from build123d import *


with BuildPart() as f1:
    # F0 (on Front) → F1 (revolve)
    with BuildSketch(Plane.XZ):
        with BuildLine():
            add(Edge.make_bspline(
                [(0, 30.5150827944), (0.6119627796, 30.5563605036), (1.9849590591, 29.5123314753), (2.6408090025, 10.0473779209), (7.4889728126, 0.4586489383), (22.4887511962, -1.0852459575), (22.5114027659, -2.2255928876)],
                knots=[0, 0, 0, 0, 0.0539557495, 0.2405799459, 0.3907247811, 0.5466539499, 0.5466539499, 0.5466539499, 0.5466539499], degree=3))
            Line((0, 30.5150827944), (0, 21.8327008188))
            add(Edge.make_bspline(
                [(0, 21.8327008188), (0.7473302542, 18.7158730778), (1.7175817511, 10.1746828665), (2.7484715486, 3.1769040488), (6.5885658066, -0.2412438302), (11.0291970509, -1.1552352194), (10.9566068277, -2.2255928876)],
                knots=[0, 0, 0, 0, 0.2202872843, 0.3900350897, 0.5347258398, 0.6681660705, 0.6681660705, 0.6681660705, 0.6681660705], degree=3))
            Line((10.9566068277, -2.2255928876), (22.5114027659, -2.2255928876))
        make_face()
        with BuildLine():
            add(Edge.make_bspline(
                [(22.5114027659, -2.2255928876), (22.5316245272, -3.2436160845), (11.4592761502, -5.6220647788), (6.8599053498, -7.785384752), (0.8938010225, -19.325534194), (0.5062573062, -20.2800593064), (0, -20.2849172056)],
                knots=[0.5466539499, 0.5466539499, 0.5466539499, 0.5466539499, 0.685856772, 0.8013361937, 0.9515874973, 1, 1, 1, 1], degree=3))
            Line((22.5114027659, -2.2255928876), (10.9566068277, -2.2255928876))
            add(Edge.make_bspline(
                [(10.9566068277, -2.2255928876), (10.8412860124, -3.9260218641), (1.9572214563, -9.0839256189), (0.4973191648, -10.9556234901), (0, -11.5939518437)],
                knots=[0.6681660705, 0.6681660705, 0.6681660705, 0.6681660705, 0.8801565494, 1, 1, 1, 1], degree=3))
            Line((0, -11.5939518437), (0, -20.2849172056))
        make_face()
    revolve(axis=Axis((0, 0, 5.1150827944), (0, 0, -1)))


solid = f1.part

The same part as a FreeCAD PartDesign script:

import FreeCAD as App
import Part
import Sketcher

doc = App.newDocument("Part")
params = doc.addObject("Spreadsheet::Sheet", "Params")
for row, (alias, value) in enumerate([
    ("revolution_angle", "360 deg"),
], start=1):
    params.set(f"A{row}", alias)
    params.set(f"B{row}", "=" + value)
    params.setAlias(f"B{row}", alias)

body = doc.addObject("PartDesign::Body", "Body")

sketch1 = body.newObject("Sketcher::SketchObject", "Sketch")
sketch1.AttachmentSupport = (doc.getObject("XZ_Plane"), [""])
sketch1.MapMode = "FlatFace"
sketch1.addGeometry([
    Part.BSplineCurve([App.Vector(0, 30.515083, 0), App.Vector(0.611963, 30.556361, 0), App.Vector(1.984959, 29.512331, 0), App.Vector(2.640809, 10.047378, 0), App.Vector(7.488973, 0.458649, 0), App.Vector(22.488751, -1.085246, 0), App.Vector(22.511403, -2.225593, 0)], [4, 1, 1, 1, 4], [0, 0.053955749, 0.240579946, 0.390724781, 0.54665395], False, 3, [1, 1, 1, 1, 1, 1, 1], False),
    Part.LineSegment(App.Vector(0, 30.515083, 0), App.Vector(0, 21.832701, 0)),
    Part.BSplineCurve([App.Vector(0, 21.832701, 0), App.Vector(0.74733, 18.715873, 0), App.Vector(1.717582, 10.174683, 0), App.Vector(2.748472, 3.176904, 0), App.Vector(6.588566, -0.241244, 0), App.Vector(11.029197, -1.155235, 0), App.Vector(10.956607, -2.225593, 0)], [4, 1, 1, 1, 4], [0, 0.220287284, 0.39003509, 0.53472584, 0.66816607], False, 3, [1, 1, 1, 1, 1, 1, 1], False),
    Part.BSplineCurve([App.Vector(10.956607, -2.225593, 0), App.Vector(10.841286, -3.926022, 0), App.Vector(1.957221, -9.083926, 0), App.Vector(0.497319, -10.955623, 0), App.Vector(0, -11.593952, 0)], [4, 1, 4], [0.66816607, 0.880156549, 1], False, 3, [1, 1, 1, 1, 1], False),
    Part.LineSegment(App.Vector(0, -11.593952, 0), App.Vector(0, -20.284917, 0)),
    Part.BSplineCurve([App.Vector(22.511403, -2.225593, 0), App.Vector(22.531625, -3.243616, 0), App.Vector(11.459276, -5.622065, 0), App.Vector(6.859905, -7.785385, 0), App.Vector(0.893801, -19.325534, 0), App.Vector(0.506257, -20.280059, 0), App.Vector(0, -20.284917, 0)], [4, 1, 1, 1, 4], [0.54665395, 0.685856772, 0.801336194, 0.951587497, 1], False, 3, [1, 1, 1, 1, 1, 1, 1], False),
], False)
sketch1.addConstraint([
    Sketcher.Constraint("Block", 0),
    Sketcher.Constraint("Block", 2),
    Sketcher.Constraint("Block", 3),
    Sketcher.Constraint("Block", 5),
    Sketcher.Constraint("Coincident", 0, 1, 1, 1),
    Sketcher.Constraint("Coincident", 1, 2, 2, 1),
    Sketcher.Constraint("Coincident", 3, 2, 4, 1),
    Sketcher.Constraint("Coincident", 4, 2, 5, 2),
])
revolution = body.newObject("PartDesign::Revolution", "Revolution")
revolution.Profile = sketch1
revolution.ReferenceAxis = (sketch1, ["V_Axis"])
revolution.setExpression("Angle", "Params.revolution_angle")

doc.recompute()
